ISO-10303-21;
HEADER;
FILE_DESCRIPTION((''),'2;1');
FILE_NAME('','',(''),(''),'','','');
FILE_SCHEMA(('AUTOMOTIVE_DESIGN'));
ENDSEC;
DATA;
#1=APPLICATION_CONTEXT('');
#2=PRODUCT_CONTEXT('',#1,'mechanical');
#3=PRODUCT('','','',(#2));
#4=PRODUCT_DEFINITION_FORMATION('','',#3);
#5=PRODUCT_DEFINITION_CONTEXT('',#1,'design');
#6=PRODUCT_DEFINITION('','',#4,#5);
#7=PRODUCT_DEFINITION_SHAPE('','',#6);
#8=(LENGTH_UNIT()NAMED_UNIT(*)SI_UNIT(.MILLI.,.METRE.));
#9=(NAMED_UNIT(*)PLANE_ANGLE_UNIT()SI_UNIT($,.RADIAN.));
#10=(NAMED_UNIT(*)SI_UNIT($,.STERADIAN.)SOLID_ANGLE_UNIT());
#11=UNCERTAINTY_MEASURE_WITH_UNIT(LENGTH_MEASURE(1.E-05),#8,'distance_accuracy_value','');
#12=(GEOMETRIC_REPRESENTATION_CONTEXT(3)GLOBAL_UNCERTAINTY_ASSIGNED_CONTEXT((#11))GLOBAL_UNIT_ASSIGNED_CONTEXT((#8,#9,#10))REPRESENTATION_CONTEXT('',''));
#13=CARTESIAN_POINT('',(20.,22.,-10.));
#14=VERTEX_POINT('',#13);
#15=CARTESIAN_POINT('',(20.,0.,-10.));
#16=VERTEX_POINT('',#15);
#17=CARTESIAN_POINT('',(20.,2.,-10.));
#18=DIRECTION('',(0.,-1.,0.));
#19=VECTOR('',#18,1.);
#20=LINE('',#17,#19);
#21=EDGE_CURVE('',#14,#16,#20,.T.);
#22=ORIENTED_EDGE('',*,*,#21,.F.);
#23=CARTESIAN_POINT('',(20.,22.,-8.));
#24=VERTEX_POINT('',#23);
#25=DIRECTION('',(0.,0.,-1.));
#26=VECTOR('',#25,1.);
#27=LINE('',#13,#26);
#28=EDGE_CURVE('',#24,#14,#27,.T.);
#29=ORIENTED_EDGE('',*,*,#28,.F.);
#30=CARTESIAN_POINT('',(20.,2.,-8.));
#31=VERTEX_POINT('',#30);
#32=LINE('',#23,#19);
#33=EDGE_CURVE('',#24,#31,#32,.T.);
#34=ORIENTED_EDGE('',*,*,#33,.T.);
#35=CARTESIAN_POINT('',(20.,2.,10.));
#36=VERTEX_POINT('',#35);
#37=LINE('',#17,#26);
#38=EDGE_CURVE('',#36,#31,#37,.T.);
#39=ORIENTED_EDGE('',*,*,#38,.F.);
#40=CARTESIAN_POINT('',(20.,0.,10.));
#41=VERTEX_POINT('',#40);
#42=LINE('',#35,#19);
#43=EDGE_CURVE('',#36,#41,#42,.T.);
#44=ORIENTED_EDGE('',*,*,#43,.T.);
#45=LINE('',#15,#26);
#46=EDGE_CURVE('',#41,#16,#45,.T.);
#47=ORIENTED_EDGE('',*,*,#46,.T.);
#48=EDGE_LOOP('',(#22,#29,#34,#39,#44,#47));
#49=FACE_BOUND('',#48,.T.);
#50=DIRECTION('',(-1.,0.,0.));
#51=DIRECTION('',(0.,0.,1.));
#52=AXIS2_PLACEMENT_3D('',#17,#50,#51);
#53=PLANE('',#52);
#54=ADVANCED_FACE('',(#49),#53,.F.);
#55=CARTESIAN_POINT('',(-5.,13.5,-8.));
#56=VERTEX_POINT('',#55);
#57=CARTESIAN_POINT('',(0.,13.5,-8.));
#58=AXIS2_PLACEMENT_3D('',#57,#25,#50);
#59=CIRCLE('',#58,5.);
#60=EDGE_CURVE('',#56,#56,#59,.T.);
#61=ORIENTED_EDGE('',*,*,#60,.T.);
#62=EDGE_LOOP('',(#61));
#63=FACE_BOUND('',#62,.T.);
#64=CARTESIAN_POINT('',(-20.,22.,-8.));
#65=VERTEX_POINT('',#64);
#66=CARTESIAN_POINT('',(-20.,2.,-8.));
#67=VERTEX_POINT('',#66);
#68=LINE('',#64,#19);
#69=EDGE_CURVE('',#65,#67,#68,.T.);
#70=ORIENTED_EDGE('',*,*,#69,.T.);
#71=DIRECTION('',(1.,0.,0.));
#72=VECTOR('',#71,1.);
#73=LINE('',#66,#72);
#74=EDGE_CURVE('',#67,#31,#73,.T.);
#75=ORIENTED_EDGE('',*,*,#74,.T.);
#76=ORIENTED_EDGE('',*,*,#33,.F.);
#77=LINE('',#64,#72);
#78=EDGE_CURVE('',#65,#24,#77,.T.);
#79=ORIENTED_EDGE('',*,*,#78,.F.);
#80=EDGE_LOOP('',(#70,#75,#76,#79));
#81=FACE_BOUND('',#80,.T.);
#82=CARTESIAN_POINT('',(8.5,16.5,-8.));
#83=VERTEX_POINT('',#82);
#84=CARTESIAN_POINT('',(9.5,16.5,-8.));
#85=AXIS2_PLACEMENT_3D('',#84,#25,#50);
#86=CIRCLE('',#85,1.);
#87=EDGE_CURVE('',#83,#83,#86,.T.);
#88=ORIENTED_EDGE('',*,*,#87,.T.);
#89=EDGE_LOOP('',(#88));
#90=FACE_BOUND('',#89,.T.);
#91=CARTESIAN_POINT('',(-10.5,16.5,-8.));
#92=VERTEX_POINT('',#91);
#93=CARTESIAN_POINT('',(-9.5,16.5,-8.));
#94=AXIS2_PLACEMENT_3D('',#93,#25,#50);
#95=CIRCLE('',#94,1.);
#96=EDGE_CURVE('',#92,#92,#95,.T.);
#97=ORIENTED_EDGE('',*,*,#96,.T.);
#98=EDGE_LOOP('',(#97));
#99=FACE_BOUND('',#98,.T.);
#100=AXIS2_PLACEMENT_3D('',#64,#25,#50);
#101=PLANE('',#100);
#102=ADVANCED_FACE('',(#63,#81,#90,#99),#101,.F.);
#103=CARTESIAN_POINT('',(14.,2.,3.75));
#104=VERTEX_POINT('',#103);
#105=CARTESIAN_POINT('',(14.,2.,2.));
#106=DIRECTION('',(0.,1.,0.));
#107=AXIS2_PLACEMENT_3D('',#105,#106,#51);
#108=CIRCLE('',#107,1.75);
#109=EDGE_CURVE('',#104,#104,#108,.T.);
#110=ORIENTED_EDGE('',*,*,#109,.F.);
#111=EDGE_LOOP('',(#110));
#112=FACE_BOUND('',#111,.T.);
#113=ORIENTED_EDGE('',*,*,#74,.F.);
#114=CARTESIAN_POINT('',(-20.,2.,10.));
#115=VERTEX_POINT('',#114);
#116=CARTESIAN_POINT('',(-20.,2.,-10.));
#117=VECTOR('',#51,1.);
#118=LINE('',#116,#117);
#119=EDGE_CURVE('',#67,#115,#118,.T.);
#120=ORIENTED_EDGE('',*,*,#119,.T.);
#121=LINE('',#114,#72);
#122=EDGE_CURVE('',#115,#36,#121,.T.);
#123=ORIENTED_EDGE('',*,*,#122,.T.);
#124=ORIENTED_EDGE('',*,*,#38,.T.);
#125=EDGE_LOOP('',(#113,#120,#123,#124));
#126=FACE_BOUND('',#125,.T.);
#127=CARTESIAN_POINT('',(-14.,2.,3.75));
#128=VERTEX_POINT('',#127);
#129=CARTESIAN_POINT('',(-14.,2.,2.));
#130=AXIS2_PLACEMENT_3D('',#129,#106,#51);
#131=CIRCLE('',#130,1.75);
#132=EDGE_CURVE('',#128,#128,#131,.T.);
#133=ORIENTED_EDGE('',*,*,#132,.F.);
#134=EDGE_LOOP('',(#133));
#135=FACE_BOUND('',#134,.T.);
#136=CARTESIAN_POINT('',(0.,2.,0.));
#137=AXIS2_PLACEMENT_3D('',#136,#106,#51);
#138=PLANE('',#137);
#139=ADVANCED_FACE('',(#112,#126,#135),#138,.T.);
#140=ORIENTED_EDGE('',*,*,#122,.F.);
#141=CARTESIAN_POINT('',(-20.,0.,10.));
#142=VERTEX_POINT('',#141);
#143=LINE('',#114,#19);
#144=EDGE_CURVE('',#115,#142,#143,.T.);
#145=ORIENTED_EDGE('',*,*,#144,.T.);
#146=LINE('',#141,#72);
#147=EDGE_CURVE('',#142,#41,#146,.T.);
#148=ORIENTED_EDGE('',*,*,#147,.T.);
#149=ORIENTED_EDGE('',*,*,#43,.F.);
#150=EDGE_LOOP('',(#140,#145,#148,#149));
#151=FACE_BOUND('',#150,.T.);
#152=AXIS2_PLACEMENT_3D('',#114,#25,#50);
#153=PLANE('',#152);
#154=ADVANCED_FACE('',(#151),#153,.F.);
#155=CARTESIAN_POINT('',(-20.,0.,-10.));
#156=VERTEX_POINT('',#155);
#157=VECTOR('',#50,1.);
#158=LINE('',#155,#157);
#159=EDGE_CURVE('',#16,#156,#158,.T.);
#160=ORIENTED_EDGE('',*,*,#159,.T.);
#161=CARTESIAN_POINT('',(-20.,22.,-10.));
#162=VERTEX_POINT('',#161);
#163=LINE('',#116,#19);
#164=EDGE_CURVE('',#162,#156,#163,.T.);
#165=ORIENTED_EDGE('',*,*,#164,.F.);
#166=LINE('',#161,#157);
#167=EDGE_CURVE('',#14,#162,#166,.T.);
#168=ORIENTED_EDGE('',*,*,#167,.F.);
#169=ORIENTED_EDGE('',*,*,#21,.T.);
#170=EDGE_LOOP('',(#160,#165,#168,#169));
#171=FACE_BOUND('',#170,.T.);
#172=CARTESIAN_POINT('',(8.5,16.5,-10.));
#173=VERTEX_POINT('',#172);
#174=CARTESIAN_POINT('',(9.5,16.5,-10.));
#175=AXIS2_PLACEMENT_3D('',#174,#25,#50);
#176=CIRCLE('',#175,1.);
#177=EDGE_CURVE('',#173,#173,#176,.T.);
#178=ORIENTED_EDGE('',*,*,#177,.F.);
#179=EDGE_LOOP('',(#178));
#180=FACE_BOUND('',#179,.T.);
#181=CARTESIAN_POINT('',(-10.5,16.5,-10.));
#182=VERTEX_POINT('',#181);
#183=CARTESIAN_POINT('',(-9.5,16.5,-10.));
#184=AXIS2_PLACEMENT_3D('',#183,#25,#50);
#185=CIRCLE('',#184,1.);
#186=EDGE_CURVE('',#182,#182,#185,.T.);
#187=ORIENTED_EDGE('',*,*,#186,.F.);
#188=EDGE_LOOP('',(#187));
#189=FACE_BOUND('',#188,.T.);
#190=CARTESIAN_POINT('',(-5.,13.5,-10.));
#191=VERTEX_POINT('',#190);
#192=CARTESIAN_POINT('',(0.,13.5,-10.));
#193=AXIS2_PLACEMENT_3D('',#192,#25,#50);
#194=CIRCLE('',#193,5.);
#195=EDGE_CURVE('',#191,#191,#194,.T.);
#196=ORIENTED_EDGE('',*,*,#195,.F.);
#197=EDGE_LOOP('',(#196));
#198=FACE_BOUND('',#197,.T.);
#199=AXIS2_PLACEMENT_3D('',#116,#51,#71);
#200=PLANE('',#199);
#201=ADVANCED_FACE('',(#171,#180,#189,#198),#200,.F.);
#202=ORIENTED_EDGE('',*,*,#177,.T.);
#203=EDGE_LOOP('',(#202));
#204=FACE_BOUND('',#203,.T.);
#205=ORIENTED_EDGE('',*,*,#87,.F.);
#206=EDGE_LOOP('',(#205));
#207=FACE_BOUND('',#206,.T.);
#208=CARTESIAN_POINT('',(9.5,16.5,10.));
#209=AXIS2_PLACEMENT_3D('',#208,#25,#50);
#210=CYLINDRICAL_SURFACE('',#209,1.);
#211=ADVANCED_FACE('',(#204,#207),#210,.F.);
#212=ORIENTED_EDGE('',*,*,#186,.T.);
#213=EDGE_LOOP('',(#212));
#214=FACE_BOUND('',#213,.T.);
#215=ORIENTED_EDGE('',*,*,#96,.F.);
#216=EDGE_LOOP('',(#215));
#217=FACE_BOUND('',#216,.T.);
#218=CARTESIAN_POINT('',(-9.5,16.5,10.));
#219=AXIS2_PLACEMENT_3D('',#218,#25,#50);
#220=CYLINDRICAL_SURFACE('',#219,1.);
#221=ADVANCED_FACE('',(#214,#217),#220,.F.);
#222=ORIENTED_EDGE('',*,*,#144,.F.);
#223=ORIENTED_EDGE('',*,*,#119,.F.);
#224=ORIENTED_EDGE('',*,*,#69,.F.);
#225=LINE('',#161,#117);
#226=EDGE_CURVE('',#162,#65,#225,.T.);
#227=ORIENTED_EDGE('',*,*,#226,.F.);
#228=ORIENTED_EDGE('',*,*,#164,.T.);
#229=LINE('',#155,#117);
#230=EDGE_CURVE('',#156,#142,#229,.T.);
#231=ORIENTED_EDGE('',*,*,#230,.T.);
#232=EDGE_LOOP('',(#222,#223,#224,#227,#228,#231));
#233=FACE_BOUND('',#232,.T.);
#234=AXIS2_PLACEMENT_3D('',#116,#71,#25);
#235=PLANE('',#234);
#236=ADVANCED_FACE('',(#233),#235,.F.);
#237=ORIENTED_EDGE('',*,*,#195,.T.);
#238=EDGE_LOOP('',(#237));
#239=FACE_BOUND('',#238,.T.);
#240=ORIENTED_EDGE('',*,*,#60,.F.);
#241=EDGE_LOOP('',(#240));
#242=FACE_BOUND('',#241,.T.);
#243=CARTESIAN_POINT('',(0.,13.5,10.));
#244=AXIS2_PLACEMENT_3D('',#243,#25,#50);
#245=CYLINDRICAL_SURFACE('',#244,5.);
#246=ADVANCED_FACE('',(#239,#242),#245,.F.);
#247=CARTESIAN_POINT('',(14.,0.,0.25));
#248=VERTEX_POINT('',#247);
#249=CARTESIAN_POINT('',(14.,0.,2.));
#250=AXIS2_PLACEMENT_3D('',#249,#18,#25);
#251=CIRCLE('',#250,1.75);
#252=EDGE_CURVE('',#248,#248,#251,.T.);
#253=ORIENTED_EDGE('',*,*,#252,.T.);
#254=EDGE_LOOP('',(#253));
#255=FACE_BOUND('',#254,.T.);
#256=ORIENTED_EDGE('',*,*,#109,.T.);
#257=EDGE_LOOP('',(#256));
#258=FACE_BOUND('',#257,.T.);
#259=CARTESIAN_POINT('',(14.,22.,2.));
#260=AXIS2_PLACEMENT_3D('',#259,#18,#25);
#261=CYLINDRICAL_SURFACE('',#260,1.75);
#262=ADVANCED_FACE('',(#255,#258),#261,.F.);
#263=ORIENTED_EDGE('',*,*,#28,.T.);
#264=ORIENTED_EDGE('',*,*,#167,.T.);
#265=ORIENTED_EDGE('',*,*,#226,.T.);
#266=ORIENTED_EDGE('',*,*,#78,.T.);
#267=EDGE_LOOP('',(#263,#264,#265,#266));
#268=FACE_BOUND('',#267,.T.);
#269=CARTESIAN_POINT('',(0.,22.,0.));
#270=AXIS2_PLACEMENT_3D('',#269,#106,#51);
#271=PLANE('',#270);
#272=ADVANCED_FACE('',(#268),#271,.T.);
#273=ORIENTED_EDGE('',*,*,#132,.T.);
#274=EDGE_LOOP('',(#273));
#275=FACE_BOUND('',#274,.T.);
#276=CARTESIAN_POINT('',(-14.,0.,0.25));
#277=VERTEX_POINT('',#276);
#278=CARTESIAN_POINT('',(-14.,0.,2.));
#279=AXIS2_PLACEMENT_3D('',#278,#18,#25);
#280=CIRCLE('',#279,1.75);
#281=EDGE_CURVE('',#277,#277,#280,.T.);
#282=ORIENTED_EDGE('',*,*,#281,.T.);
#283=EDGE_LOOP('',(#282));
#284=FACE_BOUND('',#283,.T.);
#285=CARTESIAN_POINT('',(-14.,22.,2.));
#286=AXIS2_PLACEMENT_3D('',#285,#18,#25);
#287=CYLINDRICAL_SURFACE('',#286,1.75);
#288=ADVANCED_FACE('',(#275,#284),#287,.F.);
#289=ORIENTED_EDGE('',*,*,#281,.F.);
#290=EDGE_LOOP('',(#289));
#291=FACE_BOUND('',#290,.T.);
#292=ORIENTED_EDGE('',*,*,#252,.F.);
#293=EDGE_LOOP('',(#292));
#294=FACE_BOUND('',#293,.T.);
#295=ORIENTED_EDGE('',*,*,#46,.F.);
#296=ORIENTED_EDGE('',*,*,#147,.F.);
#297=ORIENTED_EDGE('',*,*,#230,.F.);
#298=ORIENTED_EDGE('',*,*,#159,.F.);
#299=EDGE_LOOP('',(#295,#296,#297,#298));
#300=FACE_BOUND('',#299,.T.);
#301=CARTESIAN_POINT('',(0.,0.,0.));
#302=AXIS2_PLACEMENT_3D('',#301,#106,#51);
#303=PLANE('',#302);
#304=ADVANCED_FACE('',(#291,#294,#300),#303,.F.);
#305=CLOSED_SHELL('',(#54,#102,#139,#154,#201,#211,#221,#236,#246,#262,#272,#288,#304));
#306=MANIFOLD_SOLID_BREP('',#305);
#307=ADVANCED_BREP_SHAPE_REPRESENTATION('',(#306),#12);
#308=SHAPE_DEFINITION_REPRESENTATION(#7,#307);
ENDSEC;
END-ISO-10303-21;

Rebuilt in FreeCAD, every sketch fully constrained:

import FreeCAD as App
import Part
import Sketcher
from FreeCAD import Vector

doc = App.newDocument("Part")
body = doc.addObject("PartDesign::Body", "Body")

sketch1 = body.newObject("Sketcher::SketchObject", "Sketch")
sketch1.AttachmentSupport = (doc.getObject("XZ_Plane"), [""])
sketch1.MapMode = "FlatFace"
sketch1.addGeometry(Part.LineSegment(Vector(-20, -10, 0), Vector(-20, 10, 0)), False)
sketch1.addGeometry(Part.LineSegment(Vector(-20, 10, 0), Vector(20, 10, 0)), False)
sketch1.addGeometry(Part.LineSegment(Vector(20, 10, 0), Vector(20, -10, 0)), False)
sketch1.addGeometry(Part.LineSegment(Vector(20, -10, 0), Vector(-20, -10, 0)), False)
sketch1.addConstraint(Sketcher.Constraint("Coincident", 0, 2, 1, 1))
sketch1.addConstraint(Sketcher.Constraint("Coincident", 1, 2, 2, 1))
sketch1.addConstraint(Sketcher.Constraint("Coincident", 2, 2, 3, 1))
sketch1.addConstraint(Sketcher.Constraint("Coincident", 3, 2, 0, 1))
sketch1.addConstraint(Sketcher.Constraint("Vertical", 0))
sketch1.addConstraint(Sketcher.Constraint("Horizontal", 1))
sketch1.addConstraint(Sketcher.Constraint("Vertical", 2))
sketch1.addConstraint(Sketcher.Constraint("Horizontal", 3))
sketch1.addConstraint(Sketcher.Constraint("Symmetric", 0, 2, 2, 2, -1, 1))
sketch1.addConstraint(Sketcher.Constraint("DistanceX", 1, 1, 1, 2, 40.0))
sketch1.addConstraint(Sketcher.Constraint("DistanceY", 0, 1, 0, 2, 20.0))
pad1 = body.newObject("PartDesign::Pad", "Pad")
pad1.Profile = sketch1
pad1.Length = 2
pad1.Reversed = True

sketch2 = body.newObject("Sketcher::SketchObject", "Sketch001")
sketch2.AttachmentSupport = (doc.getObject("XZ_Plane"), [""])
sketch2.MapMode = "FlatFace"
sketch2.AttachmentOffset = App.Placement(Vector(0, 0, -2), App.Rotation())
sketch2.addGeometry(Part.LineSegment(Vector(-20, -10, 0), Vector(-20, -8, 0)), False)
sketch2.addGeometry(Part.LineSegment(Vector(-20, -8, 0), Vector(20, -8, 0)), False)
sketch2.addGeometry(Part.LineSegment(Vector(20, -8, 0), Vector(20, -10, 0)), False)
sketch2.addGeometry(Part.LineSegment(Vector(20, -10, 0), Vector(-20, -10, 0)), False)
sketch2.addConstraint(Sketcher.Constraint("Coincident", 0, 2, 1, 1))
sketch2.addConstraint(Sketcher.Constraint("Coincident", 1, 2, 2, 1))
sketch2.addConstraint(Sketcher.Constraint("Coincident", 2, 2, 3, 1))
sketch2.addConstraint(Sketcher.Constraint("Coincident", 3, 2, 0, 1))
sketch2.addConstraint(Sketcher.Constraint("Vertical", 0))
sketch2.addConstraint(Sketcher.Constraint("Horizontal", 1))
sketch2.addConstraint(Sketcher.Constraint("Vertical", 2))
sketch2.addConstraint(Sketcher.Constraint("Horizontal", 3))
sketch2.addConstraint(Sketcher.Constraint("DistanceX", 1, 1, 1, 2, 40.0))
sketch2.addConstraint(Sketcher.Constraint("DistanceY", 0, 1, 0, 2, 2.0))
sketch2.addConstraint(Sketcher.Constraint("DistanceX", 0, 2, -1, 1, 20.0))
sketch2.addConstraint(Sketcher.Constraint("DistanceY", 0, 2, -1, 1, 8.0))
pad2 = body.newObject("PartDesign::Pad", "Pad001")
pad2.Profile = sketch2
pad2.Length = 20
pad2.Reversed = True

sketch3 = body.newObject("Sketcher::SketchObject", "Sketch002")
sketch3.AttachmentSupport = (doc.getObject("XZ_Plane"), [""])
sketch3.MapMode = "FlatFace"
sketch3.addGeometry(Part.Circle(Vector(-14, 2, 0), Vector(0, 0, 1), 1.8), False)
sketch3.addGeometry(Part.Circle(Vector(14, 2, 0), Vector(0, 0, 1), 1.8), False)
sketch3.addConstraint(Sketcher.Constraint("Equal", 0, 1))
sketch3.addConstraint(Sketcher.Constraint("Symmetric", 0, 3, 1, 3, -2))
sketch3.addConstraint(Sketcher.Constraint("Diameter", 0, 3.5))
sketch3.addConstraint(Sketcher.Constraint("DistanceX", 0, 3, -1, 1, 14.0))
sketch3.addConstraint(Sketcher.Constraint("DistanceY", -1, 1, 0, 3, 2.0))
pocket1 = body.newObject("PartDesign::Pocket", "Pocket")
pocket1.Profile = sketch3
pocket1.Type = "ThroughAll"

sketch4 = body.newObject("Sketcher::SketchObject", "Sketch003")
sketch4.AttachmentSupport = (doc.getObject("XY_Plane"), [""])
sketch4.MapMode = "FlatFace"
sketch4.AttachmentOffset = App.Placement(Vector(0, 0, -10), App.Rotation())
sketch4.addGeometry(Part.Circle(Vector(0, 13.5, 0), Vector(0, 0, 1), 5), False)
sketch4.addGeometry(Part.Circle(Vector(9.5, 16.5, 0), Vector(0, 0, 1), 1), False)
sketch4.addGeometry(Part.Circle(Vector(-9.5, 16.5, 0), Vector(0, 0, 1), 1), False)
sketch4.addConstraint(Sketcher.Constraint("Equal", 1, 2))
sketch4.addConstraint(Sketcher.Constraint("Symmetric", 1, 3, 2, 3, -2))
sketch4.addConstraint(Sketcher.Constraint("PointOnObject", 0, 3, -2))
sketch4.addConstraint(Sketcher.Constraint("Diameter", 0, 10.0))
sketch4.addConstraint(Sketcher.Constraint("Diameter", 1, 2.0))
sketch4.addConstraint(Sketcher.Constraint("DistanceY", 0, 3, 1, 3, 3.0))
sketch4.addConstraint(Sketcher.Constraint("DistanceX", 2, 3, 1, 3, 19.0))
sketch4.addConstraint(Sketcher.Constraint("DistanceY", -1, 1, 0, 3, 13.5))
pocket2 = body.newObject("PartDesign::Pocket", "Pocket001")
pocket2.Profile = sketch4
pocket2.Type = "ThroughAll"
pocket2.Reversed = True

doc.recompute()
